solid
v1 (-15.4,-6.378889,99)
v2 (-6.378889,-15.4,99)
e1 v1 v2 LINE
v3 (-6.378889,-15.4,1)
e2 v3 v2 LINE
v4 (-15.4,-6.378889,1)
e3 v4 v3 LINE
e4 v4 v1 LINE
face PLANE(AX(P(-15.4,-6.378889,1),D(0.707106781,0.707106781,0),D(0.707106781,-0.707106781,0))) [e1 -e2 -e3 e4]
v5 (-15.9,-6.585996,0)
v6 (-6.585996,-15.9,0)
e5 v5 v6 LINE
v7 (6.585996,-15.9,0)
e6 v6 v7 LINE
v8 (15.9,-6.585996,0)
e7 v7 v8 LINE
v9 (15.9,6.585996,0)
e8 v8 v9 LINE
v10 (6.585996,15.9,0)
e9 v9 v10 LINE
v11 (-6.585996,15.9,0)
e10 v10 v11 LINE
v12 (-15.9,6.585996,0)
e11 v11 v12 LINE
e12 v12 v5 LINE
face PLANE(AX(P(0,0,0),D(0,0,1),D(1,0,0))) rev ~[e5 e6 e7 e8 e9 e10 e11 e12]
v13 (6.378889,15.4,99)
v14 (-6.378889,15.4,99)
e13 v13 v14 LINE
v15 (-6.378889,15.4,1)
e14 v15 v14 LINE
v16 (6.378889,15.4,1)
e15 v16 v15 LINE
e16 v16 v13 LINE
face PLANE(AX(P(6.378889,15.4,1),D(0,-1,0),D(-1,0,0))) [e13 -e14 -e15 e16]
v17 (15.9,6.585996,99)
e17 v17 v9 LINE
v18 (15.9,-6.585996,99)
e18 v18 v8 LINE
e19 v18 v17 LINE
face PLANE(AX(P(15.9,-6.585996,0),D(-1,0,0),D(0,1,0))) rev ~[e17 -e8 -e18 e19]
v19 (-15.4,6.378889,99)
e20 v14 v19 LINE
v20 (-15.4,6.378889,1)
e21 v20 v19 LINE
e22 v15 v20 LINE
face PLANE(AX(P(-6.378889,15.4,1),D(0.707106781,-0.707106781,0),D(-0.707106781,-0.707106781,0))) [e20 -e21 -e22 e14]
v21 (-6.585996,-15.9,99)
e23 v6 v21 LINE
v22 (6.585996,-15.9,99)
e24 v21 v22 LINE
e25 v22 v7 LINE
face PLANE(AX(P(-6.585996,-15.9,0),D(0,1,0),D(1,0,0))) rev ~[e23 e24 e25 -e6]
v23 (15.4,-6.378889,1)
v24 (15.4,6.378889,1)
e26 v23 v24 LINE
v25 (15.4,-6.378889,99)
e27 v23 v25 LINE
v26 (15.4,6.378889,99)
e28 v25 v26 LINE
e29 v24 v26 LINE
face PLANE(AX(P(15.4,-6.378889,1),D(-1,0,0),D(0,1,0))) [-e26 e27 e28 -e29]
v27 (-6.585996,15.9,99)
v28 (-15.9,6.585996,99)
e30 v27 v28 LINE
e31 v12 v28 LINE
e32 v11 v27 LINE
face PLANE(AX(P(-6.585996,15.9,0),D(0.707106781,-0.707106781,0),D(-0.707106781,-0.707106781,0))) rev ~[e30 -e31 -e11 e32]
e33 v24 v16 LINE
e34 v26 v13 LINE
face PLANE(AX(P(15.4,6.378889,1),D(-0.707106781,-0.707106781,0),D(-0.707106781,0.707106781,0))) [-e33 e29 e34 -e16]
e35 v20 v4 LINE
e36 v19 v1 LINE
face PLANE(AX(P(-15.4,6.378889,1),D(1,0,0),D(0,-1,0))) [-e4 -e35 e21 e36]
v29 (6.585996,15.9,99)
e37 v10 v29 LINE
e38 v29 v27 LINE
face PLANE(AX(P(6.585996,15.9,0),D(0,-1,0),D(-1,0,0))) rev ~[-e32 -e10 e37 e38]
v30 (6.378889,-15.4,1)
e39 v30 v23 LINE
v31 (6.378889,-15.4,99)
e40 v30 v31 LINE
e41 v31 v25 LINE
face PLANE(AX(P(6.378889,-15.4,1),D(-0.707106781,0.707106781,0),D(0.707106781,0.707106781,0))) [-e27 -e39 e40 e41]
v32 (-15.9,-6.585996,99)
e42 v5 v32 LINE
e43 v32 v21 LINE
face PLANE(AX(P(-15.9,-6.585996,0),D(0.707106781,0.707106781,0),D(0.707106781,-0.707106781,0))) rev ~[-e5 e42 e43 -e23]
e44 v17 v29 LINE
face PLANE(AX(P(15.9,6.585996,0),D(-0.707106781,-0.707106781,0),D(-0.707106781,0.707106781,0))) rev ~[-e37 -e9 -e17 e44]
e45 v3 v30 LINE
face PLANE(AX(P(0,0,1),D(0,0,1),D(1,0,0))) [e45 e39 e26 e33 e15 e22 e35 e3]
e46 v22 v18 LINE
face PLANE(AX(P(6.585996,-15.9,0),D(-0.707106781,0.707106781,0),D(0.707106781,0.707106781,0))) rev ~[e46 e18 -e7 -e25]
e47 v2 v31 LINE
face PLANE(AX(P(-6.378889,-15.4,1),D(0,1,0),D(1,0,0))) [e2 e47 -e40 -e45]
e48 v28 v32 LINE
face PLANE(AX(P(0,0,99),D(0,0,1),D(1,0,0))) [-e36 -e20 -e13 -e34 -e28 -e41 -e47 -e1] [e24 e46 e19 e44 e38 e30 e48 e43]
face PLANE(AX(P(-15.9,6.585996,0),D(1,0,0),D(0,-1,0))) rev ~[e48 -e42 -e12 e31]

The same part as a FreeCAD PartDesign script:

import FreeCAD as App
import Part
import Sketcher

V = App.Vector
Q = App.Units.Quantity

doc = App.newDocument("Part")
params = doc.addObject("Spreadsheet::Sheet", "Params")
for row, (alias, value) in enumerate([
    ("pad1_length", "1 mm"),
    ("pad2_length", "98 mm"),
], start=1):
    params.set(f"A{row}", alias)
    params.set(f"B{row}", "=" + value)
    params.setAlias(f"B{row}", alias)

body = doc.addObject("PartDesign::Body", "Body")

# Sketch on XY plane
sketch1 = doc.addObject("Sketcher::SketchObject", "Sketch")
body.addObject(sketch1)
sketch1.AttachmentSupport = (doc.XY_Plane, [""])
sketch1.MapMode = "FlatFace"
sketch1.addGeometry(Part.LineSegment(V(16, 7, 0), V(7, 16, 0)), False)
sketch1.addGeometry(Part.LineSegment(V(7, 16, 0), V(-7, 16, 0)), False)
sketch1.addGeometry(Part.LineSegment(V(-7, 16, 0), V(-16, 7, 0)), False)
sketch1.addGeometry(Part.LineSegment(V(-16, 7, 0), V(-16, -7, 0)), False)
sketch1.addGeometry(Part.LineSegment(V(-16, -7, 0), V(-7, -16, 0)), False)
sketch1.addGeometry(Part.LineSegment(V(-7, -16, 0), V(7, -16, 0)), False)
sketch1.addGeometry(Part.LineSegment(V(7, -16, 0), V(16, -7, 0)), False)
sketch1.addGeometry(Part.LineSegment(V(16, -7, 0), V(16, 7, 0)), False)
sketch1.addConstraint(Sketcher.Constraint("Coincident", 0, 2, 1, 1))
sketch1.addConstraint(Sketcher.Constraint("Coincident", 1, 2, 2, 1))
sketch1.addConstraint(Sketcher.Constraint("Coincident", 2, 2, 3, 1))
sketch1.addConstraint(Sketcher.Constraint("Coincident", 3, 2, 4, 1))
sketch1.addConstraint(Sketcher.Constraint("Coincident", 4, 2, 5, 1))
sketch1.addConstraint(Sketcher.Constraint("Coincident", 5, 2, 6, 1))
sketch1.addConstraint(Sketcher.Constraint("Coincident", 6, 2, 7, 1))
sketch1.addConstraint(Sketcher.Constraint("Coincident", 7, 2, 0, 1))
sketch1.addConstraint(Sketcher.Constraint("Horizontal", 1))
sketch1.addConstraint(Sketcher.Constraint("Vertical", 3))
sketch1.addConstraint(Sketcher.Constraint("Horizontal", 5))
sketch1.addConstraint(Sketcher.Constraint("Vertical", 7))
sketch1.addConstraint(Sketcher.Constraint("Symmetric", 0, 2, 4, 2, -1, 1))
sketch1.addConstraint(Sketcher.Constraint("Symmetric", 2, 2, 6, 2, -1, 1))
sketch1.addConstraint(Sketcher.Constraint("Perpendicular", 0, 2))
sketch1.addConstraint(Sketcher.Constraint("Perpendicular", 2, 4))
sketch1.addConstraint(Sketcher.Constraint("Perpendicular", 4, 6))
sketch1.addConstraint(Sketcher.Constraint("Horizontal", 3, 2, 6, 2))
sketch1.addConstraint(Sketcher.Constraint("Vertical", 1, 2, 4, 2))
sketch1.addConstraint(Sketcher.Constraint("Equal", 5, 3))
sketch1.addConstraint(Sketcher.Constraint("DistanceY", -1, 1, 0, 2, Q("15.9 mm")))
sketch1.addConstraint(Sketcher.Constraint("Distance", 0, Q("13.171991 mm")))
pad1 = doc.addObject("PartDesign::Pad", "Pad")
body.addObject(pad1)
pad1.Profile = sketch1
pad1.setExpression("Length", "Params.pad1_length")
body2 = doc.addObject("PartDesign::Body", "Body001")

# Sketch on XY plane
sketch2 = doc.addObject("Sketcher::SketchObject", "Sketch001")
body2.addObject(sketch2)
sketch2.AttachmentSupport = (doc.getObject("XY_Plane001"), [""])
sketch2.MapMode = "FlatFace"
sketch2.addGeometry(Part.LineSegment(V(16, 7, 0), V(7, 16, 0)), False)
sketch2.addGeometry(Part.LineSegment(V(7, 16, 0), V(-7, 16, 0)), False)
sketch2.addGeometry(Part.LineSegment(V(-7, 16, 0), V(-16, 7, 0)), False)
sketch2.addGeometry(Part.LineSegment(V(-16, 7, 0), V(-16, -7, 0)), False)
sketch2.addGeometry(Part.LineSegment(V(-16, -7, 0), V(-7, -16, 0)), False)
sketch2.addGeometry(Part.LineSegment(V(-7, -16, 0), V(7, -16, 0)), False)
sketch2.addGeometry(Part.LineSegment(V(7, -16, 0), V(16, -7, 0)), False)
sketch2.addGeometry(Part.LineSegment(V(16, -7, 0), V(16, 7, 0)), False)
sketch2.addGeometry(Part.LineSegment(V(6, 15, 0), V(15, 6, 0)), False)
sketch2.addGeometry(Part.LineSegment(V(15, 6, 0), V(15, -6, 0)), False)
sketch2.addGeometry(Part.LineSegment(V(15, -6, 0), V(6, -15, 0)), False)
sketch2.addGeometry(Part.LineSegment(V(6, -15, 0), V(-6, -15, 0)), False)
sketch2.addGeometry(Part.LineSegment(V(-6, -15, 0), V(-15, -6, 0)), False)
sketch2.addGeometry(Part.LineSegment(V(-15, -6, 0), V(-15, 6, 0)), False)
sketch2.addGeometry(Part.LineSegment(V(-15, 6, 0), V(-6, 15, 0)), False)
sketch2.addGeometry(Part.LineSegment(V(-6, 15, 0), V(6, 15, 0)), False)
sketch2.addConstraint(Sketcher.Constraint("Coincident", 0, 2, 1, 1))
sketch2.addConstraint(Sketcher.Constraint("Coincident", 1, 2, 2, 1))
sketch2.addConstraint(Sketcher.Constraint("Coincident", 2, 2, 3, 1))
sketch2.addConstraint(Sketcher.Constraint("Coincident", 3, 2, 4, 1))
sketch2.addConstraint(Sketcher.Constraint("Coincident", 4, 2, 5, 1))
sketch2.addConstraint(Sketcher.Constraint("Coincident", 5, 2, 6, 1))
sketch2.addConstraint(Sketcher.Constraint("Coincident", 6, 2, 7, 1))
sketch2.addConstraint(Sketcher.Constraint("Coincident", 7, 2, 0, 1))
sketch2.addConstraint(Sketcher.Constraint("Coincident", 8, 2, 9, 1))
sketch2.addConstraint(Sketcher.Constraint("Coincident", 9, 2, 10, 1))
sketch2.addConstraint(Sketcher.Constraint("Coincident", 10, 2, 11, 1))
sketch2.addConstraint(Sketcher.Constraint("Coincident", 11, 2, 12, 1))
sketch2.addConstraint(Sketcher.Constraint("Coincident", 12, 2, 13, 1))
sketch2.addConstraint(Sketcher.Constraint("Coincident", 13, 2, 14, 1))
sketch2.addConstraint(Sketcher.Constraint("Coincident", 14, 2, 15, 1))
sketch2.addConstraint(Sketcher.Constraint("Coincident", 15, 2, 8, 1))
sketch2.addConstraint(Sketcher.Constraint("Horizontal", 1))
sketch2.addConstraint(Sketcher.Constraint("Vertical", 3))
sketch2.addConstraint(Sketcher.Constraint("Horizontal", 5))
sketch2.addConstraint(Sketcher.Constraint("Vertical", 7))
sketch2.addConstraint(Sketcher.Constraint("Vertical", 9))
sketch2.addConstraint(Sketcher.Constraint("Horizontal", 11))
sketch2.addConstraint(Sketcher.Constraint("Vertical", 13))
sketch2.addConstraint(Sketcher.Constraint("Horizontal", 15))
sketch2.addConstraint(Sketcher.Constraint("Symmetric", 0, 2, 4, 2, -1, 1))
sketch2.addConstraint(Sketcher.Constraint("Symmetric", 2, 2, 6, 2, -1, 1))
sketch2.addConstraint(Sketcher.Constraint("Symmetric", 8, 2, 12, 2, -1, 1))
sketch2.addConstraint(Sketcher.Constraint("Symmetric", 10, 2, 14, 2, -1, 1))
sketch2.addConstraint(Sketcher.Constraint("Perpendicular", 0, 2))
sketch2.addConstraint(Sketcher.Constraint("Perpendicular", 2, 4))
sketch2.addConstraint(Sketcher.Constraint("Perpendicular", 4, 6))
sketch2.addConstraint(Sketcher.Constraint("Perpendicular", 6, 8))
sketch2.addConstraint(Sketcher.Constraint("Perpendicular", 8, 10))
sketch2.addConstraint(Sketcher.Constraint("Perpendicular", 10, 12))
sketch2.addConstraint(Sketcher.Constraint("Perpendicular", 12, 14))
sketch2.addConstraint(Sketcher.Constraint("Horizontal", 3, 2, 6, 2))
sketch2.addConstraint(Sketcher.Constraint("Horizontal", 9, 2, 12, 2))
sketch2.addConstraint(Sketcher.Constraint("Vertical", 1, 2, 4, 2))
sketch2.addConstraint(Sketcher.Constraint("Equal", 5, 3))
sketch2.addConstraint(Sketcher.Constraint("Equal", 15, 9))
sketch2.addConstraint(Sketcher.Constraint("DistanceY", -1, 1, 0, 2, Q("15.9 mm")))
sketch2.addConstraint(Sketcher.Constraint("DistanceX", -1, 1, 8, 2, Q("15.4 mm")))
sketch2.addConstraint(Sketcher.Constraint("Distance", 0, Q("13.171991 mm")))
sketch2.addConstraint(Sketcher.Constraint("DistanceX", 11, 2, 11, 1, Q("12.757778 mm")))
pad2 = doc.addObject("PartDesign::Pad", "Pad001")
body2.addObject(pad2)
pad2.Profile = sketch2
pad2.setExpression("Length", "Params.pad2_length")
body3 = doc.addObject("PartDesign::Body", "Body002")
doc.recompute()

body2.Placement = App.Placement(V(0, 0, 1), App.Rotation(V(0, 0, 1), 0))
boolean = doc.addObject("PartDesign::Boolean", "Boolean")
body3.addObject(boolean)
boolean.Type = "Fuse"
boolean.addObjects([body2])
doc.recompute()

boolean2 = doc.addObject("PartDesign::Boolean", "Boolean001")
body3.addObject(boolean2)
boolean2.Type = "Fuse"
boolean2.addObjects([body])

doc.recompute()
